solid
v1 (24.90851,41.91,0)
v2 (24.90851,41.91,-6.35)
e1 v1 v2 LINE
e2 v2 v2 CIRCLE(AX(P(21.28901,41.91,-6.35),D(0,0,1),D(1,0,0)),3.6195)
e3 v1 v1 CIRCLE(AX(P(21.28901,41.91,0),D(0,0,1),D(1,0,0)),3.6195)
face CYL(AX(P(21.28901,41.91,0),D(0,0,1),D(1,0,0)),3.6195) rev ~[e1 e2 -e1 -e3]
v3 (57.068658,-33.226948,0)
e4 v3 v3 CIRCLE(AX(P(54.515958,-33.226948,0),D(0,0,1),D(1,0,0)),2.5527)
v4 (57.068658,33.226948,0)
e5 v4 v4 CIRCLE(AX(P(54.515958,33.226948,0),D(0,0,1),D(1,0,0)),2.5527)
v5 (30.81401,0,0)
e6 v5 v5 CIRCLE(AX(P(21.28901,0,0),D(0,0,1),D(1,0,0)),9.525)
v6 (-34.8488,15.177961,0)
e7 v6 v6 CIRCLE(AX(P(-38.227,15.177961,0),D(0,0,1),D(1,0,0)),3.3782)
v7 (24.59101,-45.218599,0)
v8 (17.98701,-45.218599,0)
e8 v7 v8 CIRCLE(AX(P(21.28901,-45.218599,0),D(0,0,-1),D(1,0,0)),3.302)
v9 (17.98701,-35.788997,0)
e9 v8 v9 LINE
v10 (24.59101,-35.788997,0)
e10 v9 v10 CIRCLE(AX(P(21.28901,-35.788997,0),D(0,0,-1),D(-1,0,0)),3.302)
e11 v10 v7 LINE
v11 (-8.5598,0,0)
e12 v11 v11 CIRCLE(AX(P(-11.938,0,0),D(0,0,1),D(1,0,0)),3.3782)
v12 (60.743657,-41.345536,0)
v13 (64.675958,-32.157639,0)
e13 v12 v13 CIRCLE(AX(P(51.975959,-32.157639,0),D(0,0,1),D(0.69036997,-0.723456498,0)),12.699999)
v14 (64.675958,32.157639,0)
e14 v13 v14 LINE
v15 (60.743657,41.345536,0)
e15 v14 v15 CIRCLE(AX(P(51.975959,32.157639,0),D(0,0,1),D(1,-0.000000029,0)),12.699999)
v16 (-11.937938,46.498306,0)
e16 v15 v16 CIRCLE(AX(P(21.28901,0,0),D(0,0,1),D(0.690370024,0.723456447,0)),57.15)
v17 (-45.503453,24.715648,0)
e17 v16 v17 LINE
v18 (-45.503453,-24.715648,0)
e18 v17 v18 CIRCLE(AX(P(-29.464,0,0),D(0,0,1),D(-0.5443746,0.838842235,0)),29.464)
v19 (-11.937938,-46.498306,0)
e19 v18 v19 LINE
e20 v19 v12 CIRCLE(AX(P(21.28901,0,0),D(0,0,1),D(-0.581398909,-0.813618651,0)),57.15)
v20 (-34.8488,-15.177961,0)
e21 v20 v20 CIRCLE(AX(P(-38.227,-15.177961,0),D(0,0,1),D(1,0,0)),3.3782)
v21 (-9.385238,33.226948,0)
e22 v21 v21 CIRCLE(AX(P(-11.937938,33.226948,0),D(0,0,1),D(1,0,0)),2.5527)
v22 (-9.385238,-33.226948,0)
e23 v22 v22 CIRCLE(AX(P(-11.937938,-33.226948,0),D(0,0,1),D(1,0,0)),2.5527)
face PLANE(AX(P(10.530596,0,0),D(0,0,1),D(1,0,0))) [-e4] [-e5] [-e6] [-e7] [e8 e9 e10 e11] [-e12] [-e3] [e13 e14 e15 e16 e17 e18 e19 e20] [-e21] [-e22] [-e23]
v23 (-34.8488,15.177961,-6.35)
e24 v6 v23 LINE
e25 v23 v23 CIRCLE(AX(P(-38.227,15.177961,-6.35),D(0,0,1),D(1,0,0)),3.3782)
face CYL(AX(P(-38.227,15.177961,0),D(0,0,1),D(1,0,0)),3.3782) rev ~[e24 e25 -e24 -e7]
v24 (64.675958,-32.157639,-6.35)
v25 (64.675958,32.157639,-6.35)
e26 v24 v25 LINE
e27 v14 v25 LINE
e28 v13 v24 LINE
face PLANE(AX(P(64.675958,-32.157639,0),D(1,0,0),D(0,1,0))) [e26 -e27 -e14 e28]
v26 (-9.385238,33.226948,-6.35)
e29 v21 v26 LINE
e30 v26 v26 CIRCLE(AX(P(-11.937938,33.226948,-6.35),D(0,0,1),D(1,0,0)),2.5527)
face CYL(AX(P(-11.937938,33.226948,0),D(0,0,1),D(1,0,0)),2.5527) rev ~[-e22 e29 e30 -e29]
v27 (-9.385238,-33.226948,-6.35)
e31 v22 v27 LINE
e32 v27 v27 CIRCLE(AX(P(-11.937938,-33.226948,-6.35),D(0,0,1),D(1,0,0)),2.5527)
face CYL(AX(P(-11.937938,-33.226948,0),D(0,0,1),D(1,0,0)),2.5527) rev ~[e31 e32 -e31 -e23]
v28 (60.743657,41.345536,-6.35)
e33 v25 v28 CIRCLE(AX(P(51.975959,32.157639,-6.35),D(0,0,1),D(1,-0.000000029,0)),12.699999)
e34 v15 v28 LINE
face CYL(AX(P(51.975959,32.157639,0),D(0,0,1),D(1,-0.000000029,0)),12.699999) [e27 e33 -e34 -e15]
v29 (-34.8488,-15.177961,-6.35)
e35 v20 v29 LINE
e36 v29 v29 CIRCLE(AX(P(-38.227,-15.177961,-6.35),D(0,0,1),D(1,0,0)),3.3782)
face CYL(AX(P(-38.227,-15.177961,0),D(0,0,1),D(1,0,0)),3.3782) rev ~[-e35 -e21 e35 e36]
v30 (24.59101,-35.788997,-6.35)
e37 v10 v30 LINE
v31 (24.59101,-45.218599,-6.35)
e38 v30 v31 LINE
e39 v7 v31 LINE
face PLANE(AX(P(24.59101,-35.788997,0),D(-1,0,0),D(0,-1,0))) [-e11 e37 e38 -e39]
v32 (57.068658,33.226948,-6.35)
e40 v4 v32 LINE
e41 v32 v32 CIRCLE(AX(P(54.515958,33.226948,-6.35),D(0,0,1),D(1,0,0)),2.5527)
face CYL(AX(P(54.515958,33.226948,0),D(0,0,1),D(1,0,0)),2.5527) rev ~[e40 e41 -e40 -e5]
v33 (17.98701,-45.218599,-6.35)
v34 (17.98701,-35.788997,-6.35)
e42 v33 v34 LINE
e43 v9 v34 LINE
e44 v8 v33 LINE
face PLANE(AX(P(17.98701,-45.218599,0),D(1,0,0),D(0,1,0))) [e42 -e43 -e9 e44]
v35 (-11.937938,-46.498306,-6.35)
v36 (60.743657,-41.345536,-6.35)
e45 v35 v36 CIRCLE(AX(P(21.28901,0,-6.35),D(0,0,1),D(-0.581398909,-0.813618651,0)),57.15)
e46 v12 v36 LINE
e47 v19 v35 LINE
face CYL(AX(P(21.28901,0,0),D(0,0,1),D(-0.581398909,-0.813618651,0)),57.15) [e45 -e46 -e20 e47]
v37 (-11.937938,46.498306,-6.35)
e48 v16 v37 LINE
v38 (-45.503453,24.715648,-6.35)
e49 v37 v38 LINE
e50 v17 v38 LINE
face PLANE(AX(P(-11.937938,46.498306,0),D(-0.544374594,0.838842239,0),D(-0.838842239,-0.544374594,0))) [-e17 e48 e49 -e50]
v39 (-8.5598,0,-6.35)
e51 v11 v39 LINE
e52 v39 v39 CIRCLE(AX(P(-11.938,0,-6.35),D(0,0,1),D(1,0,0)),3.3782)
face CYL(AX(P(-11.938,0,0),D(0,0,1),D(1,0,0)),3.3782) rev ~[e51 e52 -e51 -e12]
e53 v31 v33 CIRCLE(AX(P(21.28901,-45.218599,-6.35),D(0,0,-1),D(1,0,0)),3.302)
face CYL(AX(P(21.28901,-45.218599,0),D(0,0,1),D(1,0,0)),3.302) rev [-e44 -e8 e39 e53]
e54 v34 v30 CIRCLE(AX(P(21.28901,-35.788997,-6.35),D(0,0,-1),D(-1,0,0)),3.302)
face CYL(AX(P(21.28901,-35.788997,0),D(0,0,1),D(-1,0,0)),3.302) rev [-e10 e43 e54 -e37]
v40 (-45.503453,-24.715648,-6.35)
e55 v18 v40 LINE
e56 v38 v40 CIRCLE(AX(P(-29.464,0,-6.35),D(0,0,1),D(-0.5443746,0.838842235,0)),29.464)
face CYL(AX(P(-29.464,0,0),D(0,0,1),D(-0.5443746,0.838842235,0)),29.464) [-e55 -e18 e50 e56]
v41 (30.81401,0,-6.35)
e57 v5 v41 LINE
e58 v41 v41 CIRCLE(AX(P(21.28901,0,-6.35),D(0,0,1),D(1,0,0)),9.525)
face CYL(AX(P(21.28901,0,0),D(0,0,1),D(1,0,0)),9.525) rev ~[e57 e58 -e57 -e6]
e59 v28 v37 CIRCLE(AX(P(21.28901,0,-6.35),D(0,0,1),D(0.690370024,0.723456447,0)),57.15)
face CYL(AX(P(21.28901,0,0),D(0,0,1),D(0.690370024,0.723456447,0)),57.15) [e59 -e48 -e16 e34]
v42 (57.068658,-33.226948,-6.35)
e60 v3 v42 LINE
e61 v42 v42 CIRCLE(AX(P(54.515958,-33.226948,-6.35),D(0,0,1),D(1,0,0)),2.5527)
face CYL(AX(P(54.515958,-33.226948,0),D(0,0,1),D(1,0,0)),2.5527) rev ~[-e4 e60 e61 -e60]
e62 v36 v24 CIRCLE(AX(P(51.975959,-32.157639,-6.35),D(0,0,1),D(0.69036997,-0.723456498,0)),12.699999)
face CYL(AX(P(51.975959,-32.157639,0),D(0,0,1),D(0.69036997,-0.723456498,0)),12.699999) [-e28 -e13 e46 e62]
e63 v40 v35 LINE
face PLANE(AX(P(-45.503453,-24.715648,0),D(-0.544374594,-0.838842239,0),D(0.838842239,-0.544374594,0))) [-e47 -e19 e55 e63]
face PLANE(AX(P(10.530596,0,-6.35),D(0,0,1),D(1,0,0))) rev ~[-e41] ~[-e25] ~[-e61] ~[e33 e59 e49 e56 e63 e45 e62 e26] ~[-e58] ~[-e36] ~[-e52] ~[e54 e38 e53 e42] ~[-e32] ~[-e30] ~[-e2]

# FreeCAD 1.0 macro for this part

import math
import FreeCAD as App
import Part
import Sketcher
from FreeCAD import Vector
Q = App.Units.Quantity

doc = App.newDocument("Part")
body = doc.addObject("PartDesign::Body", "Body")

# Sketch on XY plane
sketch1 = body.newObject("Sketcher::SketchObject", "Sketch")
sketch1.AttachmentSupport = (doc.getObject("XY_Plane"), [""])
sketch1.MapMode = "FlatFace"
sketch1.addGeometry(Part.ArcOfCircle(Part.Circle(Vector(52, 32.2, 0), Vector(0, 0, 1), 12.7), math.radians(0), math.radians(46)), False)
sketch1.addGeometry(Part.ArcOfCircle(Part.Circle(Vector(21.3, 0, 0), Vector(0, 0, 1), 57.2), math.radians(46), math.radians(126)), False)
sketch1.addGeometry(Part.LineSegment(Vector(-11.9, 46.5, 0), Vector(-45.5, 24.7, 0)), False)
sketch1.addGeometry(Part.ArcOfCircle(Part.Circle(Vector(-29.5, 0, 0), Vector(0, 0, 1), 29.5), math.radians(123), math.radians(237)), False)
sketch1.addGeometry(Part.LineSegment(Vector(-45.5, -24.7, 0), Vector(-11.9, -46.5, 0)), False)
sketch1.addGeometry(Part.ArcOfCircle(Part.Circle(Vector(21.3, 0, 0), Vector(0, 0, 1), 57.2), math.radians(-126), math.radians(-46)), False)
sketch1.addGeometry(Part.ArcOfCircle(Part.Circle(Vector(52, -32.2, 0), Vector(0, 0, 1), 12.7), math.radians(-46), math.radians(0)), False)
sketch1.addGeometry(Part.LineSegment(Vector(64.7, -32.2, 0), Vector(64.7, 32.2, 0)), False)
sketch1.addGeometry(Part.Circle(Vector(-11.9, -33.2, 0), Vector(0, 0, 1), 2.6), False)
sketch1.addGeometry(Part.Circle(Vector(-38.2, -15.2, 0), Vector(0, 0, 1), 3.4), False)
sketch1.addGeometry(Part.ArcOfCircle(Part.Circle(Vector(21.3, -45.2, 0), Vector(0, 0, 1), 3.3), math.radians(180), math.radians(360)), False)
sketch1.addGeometry(Part.LineSegment(Vector(18, -45.2, 0), Vector(18, -35.8, 0)), False)
sketch1.addGeometry(Part.ArcOfCircle(Part.Circle(Vector(21.3, -35.8, 0), Vector(0, 0, 1), 3.3), math.radians(0), math.radians(180)), False)
sketch1.addGeometry(Part.LineSegment(Vector(24.6, -35.8, 0), Vector(24.6, -45.2, 0)), False)
sketch1.addGeometry(Part.Circle(Vector(54.5, -33.2, 0), Vector(0, 0, 1), 2.6), False)
sketch1.addGeometry(Part.Circle(Vector(-38.2, 15.2, 0), Vector(0, 0, 1), 3.4), False)
sketch1.addGeometry(Part.Circle(Vector(-11.9, 0, 0), Vector(0, 0, 1), 3.4), False)
sketch1.addGeometry(Part.Circle(Vector(-11.9, 33.2, 0), Vector(0, 0, 1), 2.6), False)
sketch1.addGeometry(Part.Circle(Vector(21.3, 0, 0), Vector(0, 0, 1), 9.5), False)
sketch1.addGeometry(Part.Circle(Vector(21.3, 41.9, 0), Vector(0, 0, 1), 3.6), False)
sketch1.addGeometry(Part.Circle(Vector(54.5, 33.2, 0), Vector(0, 0, 1), 2.6), False)
sketch1.addConstraint(Sketcher.Constraint("Tangent", 0, 2, 1, 1))
sketch1.addConstraint(Sketcher.Constraint("Coincident", 1, 2, 2, 1))
sketch1.addConstraint(Sketcher.Constraint("Tangent", 2, 2, 3, 1))
sketch1.addConstraint(Sketcher.Constraint("Tangent", 3, 2, 4, 1))
sketch1.addConstraint(Sketcher.Constraint("Coincident", 4, 2, 5, 1))
sketch1.addConstraint(Sketcher.Constraint("Tangent", 5, 2, 6, 1))
sketch1.addConstraint(Sketcher.Constraint("Tangent", 6, 2, 7, 1))
sketch1.addConstraint(Sketcher.Constraint("Tangent", 7, 2, 0, 1))
sketch1.addConstraint(Sketcher.Constraint("Tangent", 10, 1, 11, 1))
sketch1.addConstraint(Sketcher.Constraint("Tangent", 11, 2, 12, 2))
sketch1.addConstraint(Sketcher.Constraint("Tangent", 12, 1, 13, 1))
sketch1.addConstraint(Sketcher.Constraint("Tangent", 13, 2, 10, 2))
sketch1.addConstraint(Sketcher.Constraint("Vertical", 7))
sketch1.addConstraint(Sketcher.Constraint("Vertical", 11))
sketch1.addConstraint(Sketcher.Constraint("Vertical", 13))
sketch1.addConstraint(Sketcher.Constraint("Coincident", 5, 3, 1, 3))
sketch1.addConstraint(Sketcher.Constraint("Coincident", 18, 3, 1, 3))
sketch1.addConstraint(Sketcher.Constraint("Equal", 1, 5))
sketch1.addConstraint(Sketcher.Constraint("Equal", 0, 6))
sketch1.addConstraint(Sketcher.Constraint("Equal", 8, 14))
sketch1.addConstraint(Sketcher.Constraint("Equal", 9, 15))
sketch1.addConstraint(Sketcher.Constraint("Equal", 15, 16))
sketch1.addConstraint(Sketcher.Constraint("Equal", 14, 17))
sketch1.addConstraint(Sketcher.Constraint("Equal", 17, 20))
sketch1.addConstraint(Sketcher.Constraint("Symmetric", 9, 3, 15, 3, -1))
sketch1.addConstraint(Sketcher.Constraint("Symmetric", 8, 3, 17, 3, -1))
sketch1.addConstraint(Sketcher.Constraint("Symmetric", 14, 3, 20, 3, -1))
sketch1.addConstraint(Sketcher.Constraint("Symmetric", 2, 2, 3, 2, -1))
sketch1.addConstraint(Sketcher.Constraint("PointOnObject", 1, 3, -1))
sketch1.addConstraint(Sketcher.Constraint("PointOnObject", 16, 3, -1))
sketch1.addConstraint(Sketcher.Constraint("Horizontal", 8, 3, 14, 3))
sketch1.addConstraint(Sketcher.Constraint("Vertical", 5, 3, 10, 3))
sketch1.addConstraint(Sketcher.Constraint("Vertical", 18, 3, 19, 3))
sketch1.addConstraint(Sketcher.Constraint("Vertical", 17, 3, 1, 2))
sketch1.addConstraint(Sketcher.Constraint("Radius", 0, Q("0.5 in")))
sketch1.addConstraint(Sketcher.Constraint("Diameter", 18, Q("0.75 in")))
sketch1.addConstraint(Sketcher.Constraint("Radius", 1, Q("2.25 in")))
sketch1.addConstraint(Sketcher.Constraint("Radius", 3, Q("1.16 in")))
sketch1.addConstraint(Sketcher.Constraint("Radius", 10, Q("0.13 in")))
sketch1.addConstraint(Sketcher.Constraint("Diameter", 8, Q("0.201 in")))
sketch1.addConstraint(Sketcher.Constraint("Diameter", 9, Q("0.266 in")))
sketch1.addConstraint(Sketcher.Constraint("Diameter", 19, Q("0.285 in")))
sketch1.addConstraint(Sketcher.Constraint("DistanceX", 6, 3, 14, 3, Q("0.1 in")))
sketch1.addConstraint(Sketcher.Constraint("DistanceX", 3, 3, -1, 1, Q("1.16 in")))
sketch1.addConstraint(Sketcher.Constraint("DistanceX", 16, 3, -1, 1, Q("0.47 in")))
sketch1.addConstraint(Sketcher.Constraint("DistanceY", -1, 1, 19, 3, Q("1.65 in")))
sketch1.addConstraint(Sketcher.Constraint("DistanceX", 9, 3, -1, 1, Q("1.505 in")))
sketch1.addConstraint(Sketcher.Constraint("DistanceY", 11, 1, 11, 2, Q("9.429602 mm")))
sketch1.addConstraint(Sketcher.Constraint("DistanceY", 7, 1, 7, 2, Q("64.315278 mm")))
sketch1.addConstraint(Sketcher.Constraint("DistanceY", 10, 3, -1, 1, Q("45.218599 mm")))
sketch1.addConstraint(Sketcher.Constraint("DistanceY", 2, 2, 17, 3, Q("8.5113 mm")))
sketch1.addConstraint(Sketcher.Constraint("DistanceX", -1, 1, 0, 3, Q("51.975959 mm")))
sketch1.addConstraint(Sketcher.Constraint("DistanceX", 8, 3, -1, 1, Q("11.937938 mm")))
sketch1.addConstraint(Sketcher.Constraint("DistanceY", 9, 3, -1, 1, Q("15.177961 mm")))
pad1 = body.newObject("PartDesign::Pad", "Pad")
pad1.Profile = sketch1
pad1.Length = Q("0.25 in")
pad1.Reversed = True

doc.recompute()
